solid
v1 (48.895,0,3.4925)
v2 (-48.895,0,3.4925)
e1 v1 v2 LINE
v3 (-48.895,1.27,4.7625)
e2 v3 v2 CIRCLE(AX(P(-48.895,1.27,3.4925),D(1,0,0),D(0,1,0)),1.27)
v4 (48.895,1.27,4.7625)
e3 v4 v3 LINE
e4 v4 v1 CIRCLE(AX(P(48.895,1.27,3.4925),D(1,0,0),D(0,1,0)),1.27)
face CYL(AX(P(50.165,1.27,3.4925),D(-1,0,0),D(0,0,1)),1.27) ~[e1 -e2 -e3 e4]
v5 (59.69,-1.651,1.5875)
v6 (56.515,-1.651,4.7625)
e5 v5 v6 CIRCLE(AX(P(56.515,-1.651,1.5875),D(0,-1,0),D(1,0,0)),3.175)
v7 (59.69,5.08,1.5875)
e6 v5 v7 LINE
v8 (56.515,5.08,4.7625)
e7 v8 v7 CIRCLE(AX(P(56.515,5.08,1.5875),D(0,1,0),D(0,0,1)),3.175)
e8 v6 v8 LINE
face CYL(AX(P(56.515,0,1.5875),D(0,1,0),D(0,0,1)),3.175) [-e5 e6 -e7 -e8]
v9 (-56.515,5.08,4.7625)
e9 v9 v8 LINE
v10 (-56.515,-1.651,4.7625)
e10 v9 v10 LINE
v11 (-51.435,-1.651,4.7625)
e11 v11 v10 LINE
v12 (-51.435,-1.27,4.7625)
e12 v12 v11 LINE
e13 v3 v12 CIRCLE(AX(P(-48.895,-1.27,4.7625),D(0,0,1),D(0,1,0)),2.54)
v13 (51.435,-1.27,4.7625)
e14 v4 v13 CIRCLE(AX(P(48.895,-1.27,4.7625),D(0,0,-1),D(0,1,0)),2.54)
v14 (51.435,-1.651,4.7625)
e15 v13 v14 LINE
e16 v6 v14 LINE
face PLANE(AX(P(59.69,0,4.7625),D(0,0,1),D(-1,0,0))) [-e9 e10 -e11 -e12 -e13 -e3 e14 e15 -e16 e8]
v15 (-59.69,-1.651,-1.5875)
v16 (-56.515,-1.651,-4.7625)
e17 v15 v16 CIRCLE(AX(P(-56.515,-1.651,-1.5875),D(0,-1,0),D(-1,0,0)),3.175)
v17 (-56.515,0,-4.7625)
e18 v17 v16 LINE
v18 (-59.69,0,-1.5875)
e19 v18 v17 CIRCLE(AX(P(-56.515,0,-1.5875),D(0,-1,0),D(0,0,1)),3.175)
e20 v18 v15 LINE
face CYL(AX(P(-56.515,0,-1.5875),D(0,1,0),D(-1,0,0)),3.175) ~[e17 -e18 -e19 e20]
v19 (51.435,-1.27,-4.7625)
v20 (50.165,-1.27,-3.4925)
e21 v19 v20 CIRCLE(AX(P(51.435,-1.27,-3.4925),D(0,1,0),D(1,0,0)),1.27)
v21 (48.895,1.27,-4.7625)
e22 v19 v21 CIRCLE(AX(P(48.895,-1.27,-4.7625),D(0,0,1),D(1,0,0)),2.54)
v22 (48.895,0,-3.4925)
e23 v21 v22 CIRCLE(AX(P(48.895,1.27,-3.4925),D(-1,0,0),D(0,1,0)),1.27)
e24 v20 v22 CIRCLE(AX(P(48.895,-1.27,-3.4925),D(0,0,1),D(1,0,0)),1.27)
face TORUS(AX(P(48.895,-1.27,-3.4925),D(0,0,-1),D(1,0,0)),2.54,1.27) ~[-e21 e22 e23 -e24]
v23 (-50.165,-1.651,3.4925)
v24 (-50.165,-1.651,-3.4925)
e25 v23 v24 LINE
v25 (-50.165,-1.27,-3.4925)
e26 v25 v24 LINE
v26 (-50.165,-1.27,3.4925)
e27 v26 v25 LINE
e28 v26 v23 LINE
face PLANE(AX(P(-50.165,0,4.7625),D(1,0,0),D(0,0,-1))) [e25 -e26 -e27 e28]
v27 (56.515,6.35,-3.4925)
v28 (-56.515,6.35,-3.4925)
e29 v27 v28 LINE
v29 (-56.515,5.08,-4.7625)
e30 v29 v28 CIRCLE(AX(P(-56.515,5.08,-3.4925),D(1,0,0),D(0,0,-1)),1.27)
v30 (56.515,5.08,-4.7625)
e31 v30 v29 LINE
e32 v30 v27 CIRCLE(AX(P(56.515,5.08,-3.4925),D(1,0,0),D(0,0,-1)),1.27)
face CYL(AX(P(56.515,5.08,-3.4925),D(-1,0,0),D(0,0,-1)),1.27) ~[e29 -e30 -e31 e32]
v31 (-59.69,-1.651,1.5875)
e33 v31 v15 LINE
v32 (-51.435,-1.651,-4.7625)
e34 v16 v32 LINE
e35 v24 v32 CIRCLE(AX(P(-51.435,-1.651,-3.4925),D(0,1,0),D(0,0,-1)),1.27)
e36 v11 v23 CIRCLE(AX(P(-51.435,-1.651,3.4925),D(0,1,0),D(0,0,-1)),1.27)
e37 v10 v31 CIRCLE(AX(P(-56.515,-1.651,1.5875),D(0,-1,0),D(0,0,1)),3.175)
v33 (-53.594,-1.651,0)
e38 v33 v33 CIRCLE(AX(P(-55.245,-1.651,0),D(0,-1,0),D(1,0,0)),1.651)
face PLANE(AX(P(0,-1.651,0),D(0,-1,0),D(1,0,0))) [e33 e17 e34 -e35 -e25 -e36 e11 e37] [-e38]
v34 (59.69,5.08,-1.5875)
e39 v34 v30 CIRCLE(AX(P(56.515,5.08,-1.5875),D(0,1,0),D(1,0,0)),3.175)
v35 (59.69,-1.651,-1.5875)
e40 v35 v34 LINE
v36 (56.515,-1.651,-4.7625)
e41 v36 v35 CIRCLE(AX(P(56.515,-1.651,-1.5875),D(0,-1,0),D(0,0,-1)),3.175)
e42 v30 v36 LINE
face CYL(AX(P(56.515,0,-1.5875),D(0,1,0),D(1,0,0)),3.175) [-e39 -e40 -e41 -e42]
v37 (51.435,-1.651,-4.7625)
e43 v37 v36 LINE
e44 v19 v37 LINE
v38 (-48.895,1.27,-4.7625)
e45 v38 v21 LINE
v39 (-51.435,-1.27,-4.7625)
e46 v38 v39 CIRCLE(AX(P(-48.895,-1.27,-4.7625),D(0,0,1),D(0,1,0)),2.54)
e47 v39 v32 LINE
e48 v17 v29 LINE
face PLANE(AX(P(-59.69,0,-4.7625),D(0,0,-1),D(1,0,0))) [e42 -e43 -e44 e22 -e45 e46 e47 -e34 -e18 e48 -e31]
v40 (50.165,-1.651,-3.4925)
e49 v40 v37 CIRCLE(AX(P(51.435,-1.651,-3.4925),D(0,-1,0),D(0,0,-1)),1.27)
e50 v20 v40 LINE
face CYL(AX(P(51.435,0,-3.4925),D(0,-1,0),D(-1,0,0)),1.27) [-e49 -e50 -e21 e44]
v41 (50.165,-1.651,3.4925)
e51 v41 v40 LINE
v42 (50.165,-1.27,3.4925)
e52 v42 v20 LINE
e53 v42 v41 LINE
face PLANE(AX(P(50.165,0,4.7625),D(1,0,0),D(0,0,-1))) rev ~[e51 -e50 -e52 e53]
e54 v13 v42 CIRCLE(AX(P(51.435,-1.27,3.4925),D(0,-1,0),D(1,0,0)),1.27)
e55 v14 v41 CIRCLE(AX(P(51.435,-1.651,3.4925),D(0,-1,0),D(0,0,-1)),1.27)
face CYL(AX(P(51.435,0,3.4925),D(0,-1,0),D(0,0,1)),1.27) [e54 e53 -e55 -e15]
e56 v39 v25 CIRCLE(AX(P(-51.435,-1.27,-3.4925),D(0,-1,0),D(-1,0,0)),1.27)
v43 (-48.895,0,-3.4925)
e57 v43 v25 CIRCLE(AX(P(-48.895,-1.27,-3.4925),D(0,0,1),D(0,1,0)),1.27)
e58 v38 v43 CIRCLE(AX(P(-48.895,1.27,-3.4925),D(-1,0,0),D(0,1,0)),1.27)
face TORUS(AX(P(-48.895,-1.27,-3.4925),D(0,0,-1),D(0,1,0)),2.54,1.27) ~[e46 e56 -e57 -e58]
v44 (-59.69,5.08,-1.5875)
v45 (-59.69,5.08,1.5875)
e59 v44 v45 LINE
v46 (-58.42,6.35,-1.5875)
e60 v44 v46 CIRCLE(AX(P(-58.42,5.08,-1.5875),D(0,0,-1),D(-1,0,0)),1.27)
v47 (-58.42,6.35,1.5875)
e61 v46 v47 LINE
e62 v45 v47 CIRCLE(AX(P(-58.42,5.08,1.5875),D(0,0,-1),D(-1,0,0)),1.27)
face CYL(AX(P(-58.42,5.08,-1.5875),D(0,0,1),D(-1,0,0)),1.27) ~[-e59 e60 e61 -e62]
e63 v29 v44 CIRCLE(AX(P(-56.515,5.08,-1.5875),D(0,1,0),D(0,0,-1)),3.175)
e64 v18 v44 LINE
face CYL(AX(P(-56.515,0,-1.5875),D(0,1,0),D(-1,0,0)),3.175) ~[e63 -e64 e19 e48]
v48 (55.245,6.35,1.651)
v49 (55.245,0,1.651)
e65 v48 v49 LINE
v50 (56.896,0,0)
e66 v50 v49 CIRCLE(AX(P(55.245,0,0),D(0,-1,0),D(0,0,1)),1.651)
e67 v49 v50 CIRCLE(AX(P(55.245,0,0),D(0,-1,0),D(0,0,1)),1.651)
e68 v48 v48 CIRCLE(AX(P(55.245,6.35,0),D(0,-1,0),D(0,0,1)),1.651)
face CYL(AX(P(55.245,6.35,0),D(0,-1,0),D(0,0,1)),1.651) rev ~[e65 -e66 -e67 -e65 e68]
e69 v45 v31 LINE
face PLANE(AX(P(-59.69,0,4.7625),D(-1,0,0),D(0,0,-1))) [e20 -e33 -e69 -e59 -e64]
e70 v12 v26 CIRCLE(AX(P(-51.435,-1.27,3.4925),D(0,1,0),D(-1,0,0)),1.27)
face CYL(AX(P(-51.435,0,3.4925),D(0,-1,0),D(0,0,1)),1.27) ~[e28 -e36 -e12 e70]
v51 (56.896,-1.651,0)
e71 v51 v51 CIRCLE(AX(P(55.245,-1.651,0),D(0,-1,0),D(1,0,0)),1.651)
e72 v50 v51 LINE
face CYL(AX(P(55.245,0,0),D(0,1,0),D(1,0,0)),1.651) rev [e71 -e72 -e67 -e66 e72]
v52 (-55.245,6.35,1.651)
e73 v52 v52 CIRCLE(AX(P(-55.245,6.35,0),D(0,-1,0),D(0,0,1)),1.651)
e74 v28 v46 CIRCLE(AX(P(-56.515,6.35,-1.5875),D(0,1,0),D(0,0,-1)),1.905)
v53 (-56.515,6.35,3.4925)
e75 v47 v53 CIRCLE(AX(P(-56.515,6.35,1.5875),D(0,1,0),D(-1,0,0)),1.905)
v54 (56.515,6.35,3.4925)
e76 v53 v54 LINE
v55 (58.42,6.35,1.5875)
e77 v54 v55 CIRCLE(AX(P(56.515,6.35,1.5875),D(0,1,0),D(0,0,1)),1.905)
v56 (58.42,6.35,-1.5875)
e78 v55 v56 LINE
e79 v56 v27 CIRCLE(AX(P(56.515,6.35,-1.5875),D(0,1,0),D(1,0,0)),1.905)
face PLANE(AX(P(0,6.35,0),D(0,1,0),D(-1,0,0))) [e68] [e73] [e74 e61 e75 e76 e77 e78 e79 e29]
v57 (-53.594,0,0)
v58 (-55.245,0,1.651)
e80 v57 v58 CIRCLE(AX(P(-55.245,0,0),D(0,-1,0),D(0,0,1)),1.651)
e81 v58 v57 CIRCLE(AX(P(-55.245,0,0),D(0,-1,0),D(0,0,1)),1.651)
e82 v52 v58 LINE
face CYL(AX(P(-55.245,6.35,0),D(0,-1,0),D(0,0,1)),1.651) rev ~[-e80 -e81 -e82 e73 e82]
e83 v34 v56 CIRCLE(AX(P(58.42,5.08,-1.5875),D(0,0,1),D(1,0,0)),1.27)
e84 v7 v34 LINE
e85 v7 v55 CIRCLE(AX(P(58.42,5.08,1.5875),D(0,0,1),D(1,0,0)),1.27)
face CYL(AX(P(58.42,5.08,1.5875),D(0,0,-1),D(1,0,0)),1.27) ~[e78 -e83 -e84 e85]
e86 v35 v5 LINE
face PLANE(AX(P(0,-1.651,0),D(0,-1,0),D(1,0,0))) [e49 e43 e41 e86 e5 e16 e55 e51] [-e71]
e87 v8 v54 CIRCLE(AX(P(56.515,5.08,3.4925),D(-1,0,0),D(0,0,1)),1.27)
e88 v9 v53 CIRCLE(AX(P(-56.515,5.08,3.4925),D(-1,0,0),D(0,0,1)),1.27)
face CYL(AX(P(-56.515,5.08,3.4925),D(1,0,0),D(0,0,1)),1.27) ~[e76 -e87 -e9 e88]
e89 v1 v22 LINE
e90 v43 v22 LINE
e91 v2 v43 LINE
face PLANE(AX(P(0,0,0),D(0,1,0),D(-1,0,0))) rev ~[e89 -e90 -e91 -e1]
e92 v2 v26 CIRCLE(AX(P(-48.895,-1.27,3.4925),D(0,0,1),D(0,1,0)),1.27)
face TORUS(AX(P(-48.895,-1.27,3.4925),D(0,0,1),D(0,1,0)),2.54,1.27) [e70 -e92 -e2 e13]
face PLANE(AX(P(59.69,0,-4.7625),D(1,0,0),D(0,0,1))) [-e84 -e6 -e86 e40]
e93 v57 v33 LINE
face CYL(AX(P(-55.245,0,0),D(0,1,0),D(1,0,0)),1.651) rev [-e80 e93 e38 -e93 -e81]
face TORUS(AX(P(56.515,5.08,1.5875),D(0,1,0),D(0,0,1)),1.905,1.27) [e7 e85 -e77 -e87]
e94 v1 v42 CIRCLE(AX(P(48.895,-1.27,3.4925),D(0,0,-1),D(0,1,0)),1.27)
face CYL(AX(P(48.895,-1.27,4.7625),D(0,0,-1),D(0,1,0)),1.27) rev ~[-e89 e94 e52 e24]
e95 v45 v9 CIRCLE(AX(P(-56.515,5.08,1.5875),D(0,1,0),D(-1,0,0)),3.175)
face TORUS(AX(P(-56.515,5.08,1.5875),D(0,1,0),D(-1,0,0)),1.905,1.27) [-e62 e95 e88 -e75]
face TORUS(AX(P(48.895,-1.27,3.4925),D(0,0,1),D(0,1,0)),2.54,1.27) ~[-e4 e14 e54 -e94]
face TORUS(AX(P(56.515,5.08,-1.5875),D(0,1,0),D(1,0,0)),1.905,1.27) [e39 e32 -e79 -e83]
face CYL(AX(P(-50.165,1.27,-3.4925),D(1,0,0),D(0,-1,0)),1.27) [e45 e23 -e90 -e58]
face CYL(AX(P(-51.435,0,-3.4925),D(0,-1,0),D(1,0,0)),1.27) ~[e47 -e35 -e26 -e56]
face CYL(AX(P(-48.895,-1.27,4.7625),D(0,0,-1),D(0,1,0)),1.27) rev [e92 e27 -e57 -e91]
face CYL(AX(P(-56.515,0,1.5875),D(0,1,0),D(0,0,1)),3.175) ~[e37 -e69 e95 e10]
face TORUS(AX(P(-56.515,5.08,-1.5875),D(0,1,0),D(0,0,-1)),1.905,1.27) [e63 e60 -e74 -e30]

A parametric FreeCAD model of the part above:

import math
import FreeCAD as App
import Part
import Sketcher

V = App.Vector
Q = App.Units.Quantity


def edges_at(feature, points):
    """Names of the edges that pass closest to the given points."""
    edges = feature.Shape.Edges
    near = lambda p: min(range(len(edges)), key=lambda i: edges[i].distToShape(Part.Vertex(*p))[0])
    return sorted({f"Edge{near(p) + 1}" for p in points})


def add_polygon(sketch, points):
    """Adds a closed chain of lines whose ends are joined by coincident constraints."""
    first, n = sketch.GeometryCount, len(points)
    for a, b in zip(points, points[1:] + points[:1]):
        sketch.addGeometry(Part.LineSegment(App.Vector(*a, 0), App.Vector(*b, 0)), False)
    for i in range(n):
        sketch.addConstraint(Sketcher.Constraint("Coincident", first + i, 2, first + (i + 1) % n, 1))

doc = App.newDocument("Part")
body = doc.addObject("PartDesign::Body", "Body")

sketch1 = doc.addObject("Sketcher::SketchObject", "Sketch")
body.addObject(sketch1)
sketch1.AttachmentSupport = (doc.XZ_Plane, [""])
sketch1.MapMode = "FlatFace"
add_polygon(sketch1, [(-59.69, 4.7625), (59.69, 4.7625), (59.69, -4.7625), (-59.69, -4.7625)])
sketch1.addConstraint(Sketcher.Constraint("Horizontal", 0))
sketch1.addConstraint(Sketcher.Constraint("Vertical", 1))
sketch1.addConstraint(Sketcher.Constraint("Horizontal", 2))
sketch1.addConstraint(Sketcher.Constraint("Vertical", 3))
sketch1.addConstraint(Sketcher.Constraint("Symmetric", 0, 2, 2, 2, -1, 1))
sketch1.addConstraint(Sketcher.Constraint("DistanceX", 0, 1, 0, 2, Q("4.7 in")))
sketch1.addConstraint(Sketcher.Constraint("DistanceY", 1, 2, 1, 1, Q("0.375 in")))
pad1 = doc.addObject("PartDesign::Pad", "Pad")
body.addObject(pad1)
pad1.Profile = sketch1
pad1.Length = Q("0.25 in")
pad1.Reversed = True

sketch2 = doc.addObject("Sketcher::SketchObject", "Sketch001")
body.addObject(sketch2)
sketch2.AttachmentSupport = (doc.XZ_Plane, [""])
sketch2.MapMode = "FlatFace"
sketch2.AttachmentOffset = App.Placement(V(0, 0, -0.25 * 25.4), App.Rotation())
sketch2.addGeometry(Part.Circle(V(-55.245, 0, 0), V(0, 0, 1), 1.651), False)
sketch2.addGeometry(Part.Circle(V(55.245, 0, 0), V(0, 0, 1), 1.651), False)
sketch2.addConstraint(Sketcher.Constraint("Equal", 0, 1))
sketch2.addConstraint(Sketcher.Constraint("Symmetric", 0, 3, 1, 3, -1, 1))
sketch2.addConstraint(Sketcher.Constraint("PointOnObject", 0, 3, -1))
sketch2.addConstraint(Sketcher.Constraint("Diameter", 0, Q("0.13 in")))
sketch2.addConstraint(Sketcher.Constraint("DistanceX", 0, 3, 1, 3, Q("4.35 in")))
doc.recompute()
hole = doc.addObject("PartDesign::Hole", "Hole")
body.addObject(hole)
hole.Profile = sketch2
hole.ThreadType = "None"
hole.Diameter = Q("0.13 in")
hole.DepthType = "Dimension"
hole.Depth = Q("1 in")
hole.DrillPoint = "Angled"
hole.DrillPointAngle = 118
hole.Reversed = True
doc.recompute()

fillet = doc.addObject("PartDesign::Fillet", "Fillet")
body.addObject(fillet)
fillet.Base = (hole, edges_at(hole, [
    (-59.69, 3.175, 4.763),
    (-59.69, 3.175, -4.763),
    (59.69, 3.175, 4.763),
    (59.69, 3.175, -4.763),
]))
fillet.Radius = Q("0.125 in")
doc.recompute()

fillet2 = doc.addObject("PartDesign::Fillet", "Fillet001")
body.addObject(fillet2)
fillet2.Base = (fillet, edges_at(fillet, [
    (58.76, 6.35, 3.833),
    (59.69, 6.35, 0),
    (58.76, 6.35, -3.833),
    (0, 6.35, -4.763),
    (-58.76, 6.35, -3.833),
    (-59.69, 6.35, 0),
    (-58.76, 6.35, 3.833),
    (0, 6.35, 4.763),
]))
fillet2.Radius = Q("0.05 in")

sketch3 = doc.addObject("Sketcher::SketchObject", "Sketch002")
body.addObject(sketch3)
sketch3.AttachmentSupport = (doc.XZ_Plane, [""])
sketch3.MapMode = "FlatFace"
sketch3.addGeometry(Part.LineSegment(V(50.165, -4.7625, 0), V(56.515, -4.7625, 0)), False)
sketch3.addGeometry(Part.ArcOfCircle(Part.Circle(V(56.515, -1.5875, 0), V(0, 0, 1), 3.175), math.radians(-90), math.radians(0)), False)
sketch3.addGeometry(Part.LineSegment(V(59.69, -1.5875, 0), V(59.69, 1.5875, 0)), False)
sketch3.addGeometry(Part.ArcOfCircle(Part.Circle(V(56.515, 1.5875, 0), V(0, 0, 1), 3.175), math.radians(0), math.radians(90)), False)
sketch3.addGeometry(Part.LineSegment(V(56.515, 4.7625, 0), V(50.165, 4.7625, 0)), False)
sketch3.addGeometry(Part.LineSegment(V(50.165, 4.7625, 0), V(50.165, -4.7625, 0)), False)
sketch3.addGeometry(Part.Circle(V(55.245, 0, 0), V(0, 0, 1), 1.651), False)
sketch3.addGeometry(Part.LineSegment(V(-56.515, -4.7625, 0), V(-50.165, -4.7625, 0)), False)
sketch3.addGeometry(Part.LineSegment(V(-50.165, -4.7625, 0), V(-50.165, 4.7625, 0)), False)
sketch3.addGeometry(Part.LineSegment(V(-50.165, 4.7625, 0), V(-56.515, 4.7625, 0)), False)
sketch3.addGeometry(Part.ArcOfCircle(Part.Circle(V(-56.515, 1.5875, 0), V(0, 0, 1), 3.175), math.radians(90), math.radians(180)), False)
sketch3.addGeometry(Part.LineSegment(V(-59.69, 1.5875, 0), V(-59.69, -1.5875, 0)), False)
sketch3.addGeometry(Part.ArcOfCircle(Part.Circle(V(-56.515, -1.5875, 0), V(0, 0, 1), 3.175), math.radians(180), math.radians(270)), False)
sketch3.addGeometry(Part.Circle(V(-55.245, 0, 0), V(0, 0, 1), 1.651), False)
sketch3.addConstraint(Sketcher.Constraint("Tangent", 0, 2, 1, 1))
sketch3.addConstraint(Sketcher.Constraint("Tangent", 1, 2, 2, 1))
sketch3.addConstraint(Sketcher.Constraint("Tangent", 2, 2, 3, 1))
sketch3.addConstraint(Sketcher.Constraint("Tangent", 3, 2, 4, 1))
sketch3.addConstraint(Sketcher.Constraint("Coincident", 4, 2, 5, 1))
sketch3.addConstraint(Sketcher.Constraint("Coincident", 5, 2, 0, 1))
sketch3.addConstraint(Sketcher.Constraint("Coincident", 7, 2, 8, 1))
sketch3.addConstraint(Sketcher.Constraint("Coincident", 8, 2, 9, 1))
sketch3.addConstraint(Sketcher.Constraint("Tangent", 9, 2, 10, 1))
sketch3.addConstraint(Sketcher.Constraint("Tangent", 10, 2, 11, 1))
sketch3.addConstraint(Sketcher.Constraint("Tangent", 11, 2, 12, 1))
sketch3.addConstraint(Sketcher.Constraint("Tangent", 12, 2, 7, 1))
sketch3.addConstraint(Sketcher.Constraint("Horizontal", 0))
sketch3.addConstraint(Sketcher.Constraint("Vertical", 2))
sketch3.addConstraint(Sketcher.Constraint("Horizontal", 4))
sketch3.addConstraint(Sketcher.Constraint("Vertical", 5))
sketch3.addConstraint(Sketcher.Constraint("Horizontal", 7))
sketch3.addConstraint(Sketcher.Constraint("Vertical", 8))
sketch3.addConstraint(Sketcher.Constraint("Horizontal", 9))
sketch3.addConstraint(Sketcher.Constraint("Vertical", 11))
sketch3.addConstraint(Sketcher.Constraint("Equal", 1, 3))
sketch3.addConstraint(Sketcher.Constraint("Equal", 3, 10))
sketch3.addConstraint(Sketcher.Constraint("Equal", 10, 12))
sketch3.addConstraint(Sketcher.Constraint("Equal", 6, 13))
sketch3.addConstraint(Sketcher.Constraint("Symmetric", 1, 3, 10, 3, -1, 1))
sketch3.addConstraint(Sketcher.Constraint("Symmetric", 6, 3, 13, 3, -1, 1))
sketch3.addConstraint(Sketcher.Constraint("Symmetric", 4, 2, 7, 2, -1, 1))
sketch3.addConstraint(Sketcher.Constraint("PointOnObject", 6, 3, -1))
sketch3.addConstraint(Sketcher.Constraint("Horizontal", 3, 3, 10, 3))
sketch3.addConstraint(Sketcher.Constraint("Diameter", 6, Q("0.13 in")))
sketch3.addConstraint(Sketcher.Constraint("DistanceY", 5, 2, 5, 1, Q("0.375 in")))
sketch3.addConstraint(Sketcher.Constraint("Radius", 1, Q("0.125 in")))
sketch3.addConstraint(Sketcher.Constraint("DistanceX", 4, 2, 2, 2, Q("0.375 in")))
sketch3.addConstraint(Sketcher.Constraint("DistanceX", 10, 3, 6, 3, Q("4.4 in")))
sketch3.addConstraint(Sketcher.Constraint("DistanceX", 4, 2, 6, 3, Q("0.2 in")))
pad2 = doc.addObject("PartDesign::Pad", "Pad001")
body.addObject(pad2)
pad2.Profile = sketch3
pad2.Length = Q("0.065 in")
doc.recompute()

fillet3 = doc.addObject("PartDesign::Fillet", "Fillet002")
body.addObject(fillet3)
fillet3.Base = (pad2, edges_at(pad2, [
    (0, 0, 4.763),
    (-50.165, -0.826, 4.763),
    (-50.165, -0.826, -4.763),
    (-50.165, 0, 0),
    (0, 0, -4.763),
    (50.165, -0.826, 4.763),
    (50.165, 0, 0),
    (50.165, -0.826, -4.763),
]))
fillet3.Radius = Q("0.05 in")

doc.recompute()
